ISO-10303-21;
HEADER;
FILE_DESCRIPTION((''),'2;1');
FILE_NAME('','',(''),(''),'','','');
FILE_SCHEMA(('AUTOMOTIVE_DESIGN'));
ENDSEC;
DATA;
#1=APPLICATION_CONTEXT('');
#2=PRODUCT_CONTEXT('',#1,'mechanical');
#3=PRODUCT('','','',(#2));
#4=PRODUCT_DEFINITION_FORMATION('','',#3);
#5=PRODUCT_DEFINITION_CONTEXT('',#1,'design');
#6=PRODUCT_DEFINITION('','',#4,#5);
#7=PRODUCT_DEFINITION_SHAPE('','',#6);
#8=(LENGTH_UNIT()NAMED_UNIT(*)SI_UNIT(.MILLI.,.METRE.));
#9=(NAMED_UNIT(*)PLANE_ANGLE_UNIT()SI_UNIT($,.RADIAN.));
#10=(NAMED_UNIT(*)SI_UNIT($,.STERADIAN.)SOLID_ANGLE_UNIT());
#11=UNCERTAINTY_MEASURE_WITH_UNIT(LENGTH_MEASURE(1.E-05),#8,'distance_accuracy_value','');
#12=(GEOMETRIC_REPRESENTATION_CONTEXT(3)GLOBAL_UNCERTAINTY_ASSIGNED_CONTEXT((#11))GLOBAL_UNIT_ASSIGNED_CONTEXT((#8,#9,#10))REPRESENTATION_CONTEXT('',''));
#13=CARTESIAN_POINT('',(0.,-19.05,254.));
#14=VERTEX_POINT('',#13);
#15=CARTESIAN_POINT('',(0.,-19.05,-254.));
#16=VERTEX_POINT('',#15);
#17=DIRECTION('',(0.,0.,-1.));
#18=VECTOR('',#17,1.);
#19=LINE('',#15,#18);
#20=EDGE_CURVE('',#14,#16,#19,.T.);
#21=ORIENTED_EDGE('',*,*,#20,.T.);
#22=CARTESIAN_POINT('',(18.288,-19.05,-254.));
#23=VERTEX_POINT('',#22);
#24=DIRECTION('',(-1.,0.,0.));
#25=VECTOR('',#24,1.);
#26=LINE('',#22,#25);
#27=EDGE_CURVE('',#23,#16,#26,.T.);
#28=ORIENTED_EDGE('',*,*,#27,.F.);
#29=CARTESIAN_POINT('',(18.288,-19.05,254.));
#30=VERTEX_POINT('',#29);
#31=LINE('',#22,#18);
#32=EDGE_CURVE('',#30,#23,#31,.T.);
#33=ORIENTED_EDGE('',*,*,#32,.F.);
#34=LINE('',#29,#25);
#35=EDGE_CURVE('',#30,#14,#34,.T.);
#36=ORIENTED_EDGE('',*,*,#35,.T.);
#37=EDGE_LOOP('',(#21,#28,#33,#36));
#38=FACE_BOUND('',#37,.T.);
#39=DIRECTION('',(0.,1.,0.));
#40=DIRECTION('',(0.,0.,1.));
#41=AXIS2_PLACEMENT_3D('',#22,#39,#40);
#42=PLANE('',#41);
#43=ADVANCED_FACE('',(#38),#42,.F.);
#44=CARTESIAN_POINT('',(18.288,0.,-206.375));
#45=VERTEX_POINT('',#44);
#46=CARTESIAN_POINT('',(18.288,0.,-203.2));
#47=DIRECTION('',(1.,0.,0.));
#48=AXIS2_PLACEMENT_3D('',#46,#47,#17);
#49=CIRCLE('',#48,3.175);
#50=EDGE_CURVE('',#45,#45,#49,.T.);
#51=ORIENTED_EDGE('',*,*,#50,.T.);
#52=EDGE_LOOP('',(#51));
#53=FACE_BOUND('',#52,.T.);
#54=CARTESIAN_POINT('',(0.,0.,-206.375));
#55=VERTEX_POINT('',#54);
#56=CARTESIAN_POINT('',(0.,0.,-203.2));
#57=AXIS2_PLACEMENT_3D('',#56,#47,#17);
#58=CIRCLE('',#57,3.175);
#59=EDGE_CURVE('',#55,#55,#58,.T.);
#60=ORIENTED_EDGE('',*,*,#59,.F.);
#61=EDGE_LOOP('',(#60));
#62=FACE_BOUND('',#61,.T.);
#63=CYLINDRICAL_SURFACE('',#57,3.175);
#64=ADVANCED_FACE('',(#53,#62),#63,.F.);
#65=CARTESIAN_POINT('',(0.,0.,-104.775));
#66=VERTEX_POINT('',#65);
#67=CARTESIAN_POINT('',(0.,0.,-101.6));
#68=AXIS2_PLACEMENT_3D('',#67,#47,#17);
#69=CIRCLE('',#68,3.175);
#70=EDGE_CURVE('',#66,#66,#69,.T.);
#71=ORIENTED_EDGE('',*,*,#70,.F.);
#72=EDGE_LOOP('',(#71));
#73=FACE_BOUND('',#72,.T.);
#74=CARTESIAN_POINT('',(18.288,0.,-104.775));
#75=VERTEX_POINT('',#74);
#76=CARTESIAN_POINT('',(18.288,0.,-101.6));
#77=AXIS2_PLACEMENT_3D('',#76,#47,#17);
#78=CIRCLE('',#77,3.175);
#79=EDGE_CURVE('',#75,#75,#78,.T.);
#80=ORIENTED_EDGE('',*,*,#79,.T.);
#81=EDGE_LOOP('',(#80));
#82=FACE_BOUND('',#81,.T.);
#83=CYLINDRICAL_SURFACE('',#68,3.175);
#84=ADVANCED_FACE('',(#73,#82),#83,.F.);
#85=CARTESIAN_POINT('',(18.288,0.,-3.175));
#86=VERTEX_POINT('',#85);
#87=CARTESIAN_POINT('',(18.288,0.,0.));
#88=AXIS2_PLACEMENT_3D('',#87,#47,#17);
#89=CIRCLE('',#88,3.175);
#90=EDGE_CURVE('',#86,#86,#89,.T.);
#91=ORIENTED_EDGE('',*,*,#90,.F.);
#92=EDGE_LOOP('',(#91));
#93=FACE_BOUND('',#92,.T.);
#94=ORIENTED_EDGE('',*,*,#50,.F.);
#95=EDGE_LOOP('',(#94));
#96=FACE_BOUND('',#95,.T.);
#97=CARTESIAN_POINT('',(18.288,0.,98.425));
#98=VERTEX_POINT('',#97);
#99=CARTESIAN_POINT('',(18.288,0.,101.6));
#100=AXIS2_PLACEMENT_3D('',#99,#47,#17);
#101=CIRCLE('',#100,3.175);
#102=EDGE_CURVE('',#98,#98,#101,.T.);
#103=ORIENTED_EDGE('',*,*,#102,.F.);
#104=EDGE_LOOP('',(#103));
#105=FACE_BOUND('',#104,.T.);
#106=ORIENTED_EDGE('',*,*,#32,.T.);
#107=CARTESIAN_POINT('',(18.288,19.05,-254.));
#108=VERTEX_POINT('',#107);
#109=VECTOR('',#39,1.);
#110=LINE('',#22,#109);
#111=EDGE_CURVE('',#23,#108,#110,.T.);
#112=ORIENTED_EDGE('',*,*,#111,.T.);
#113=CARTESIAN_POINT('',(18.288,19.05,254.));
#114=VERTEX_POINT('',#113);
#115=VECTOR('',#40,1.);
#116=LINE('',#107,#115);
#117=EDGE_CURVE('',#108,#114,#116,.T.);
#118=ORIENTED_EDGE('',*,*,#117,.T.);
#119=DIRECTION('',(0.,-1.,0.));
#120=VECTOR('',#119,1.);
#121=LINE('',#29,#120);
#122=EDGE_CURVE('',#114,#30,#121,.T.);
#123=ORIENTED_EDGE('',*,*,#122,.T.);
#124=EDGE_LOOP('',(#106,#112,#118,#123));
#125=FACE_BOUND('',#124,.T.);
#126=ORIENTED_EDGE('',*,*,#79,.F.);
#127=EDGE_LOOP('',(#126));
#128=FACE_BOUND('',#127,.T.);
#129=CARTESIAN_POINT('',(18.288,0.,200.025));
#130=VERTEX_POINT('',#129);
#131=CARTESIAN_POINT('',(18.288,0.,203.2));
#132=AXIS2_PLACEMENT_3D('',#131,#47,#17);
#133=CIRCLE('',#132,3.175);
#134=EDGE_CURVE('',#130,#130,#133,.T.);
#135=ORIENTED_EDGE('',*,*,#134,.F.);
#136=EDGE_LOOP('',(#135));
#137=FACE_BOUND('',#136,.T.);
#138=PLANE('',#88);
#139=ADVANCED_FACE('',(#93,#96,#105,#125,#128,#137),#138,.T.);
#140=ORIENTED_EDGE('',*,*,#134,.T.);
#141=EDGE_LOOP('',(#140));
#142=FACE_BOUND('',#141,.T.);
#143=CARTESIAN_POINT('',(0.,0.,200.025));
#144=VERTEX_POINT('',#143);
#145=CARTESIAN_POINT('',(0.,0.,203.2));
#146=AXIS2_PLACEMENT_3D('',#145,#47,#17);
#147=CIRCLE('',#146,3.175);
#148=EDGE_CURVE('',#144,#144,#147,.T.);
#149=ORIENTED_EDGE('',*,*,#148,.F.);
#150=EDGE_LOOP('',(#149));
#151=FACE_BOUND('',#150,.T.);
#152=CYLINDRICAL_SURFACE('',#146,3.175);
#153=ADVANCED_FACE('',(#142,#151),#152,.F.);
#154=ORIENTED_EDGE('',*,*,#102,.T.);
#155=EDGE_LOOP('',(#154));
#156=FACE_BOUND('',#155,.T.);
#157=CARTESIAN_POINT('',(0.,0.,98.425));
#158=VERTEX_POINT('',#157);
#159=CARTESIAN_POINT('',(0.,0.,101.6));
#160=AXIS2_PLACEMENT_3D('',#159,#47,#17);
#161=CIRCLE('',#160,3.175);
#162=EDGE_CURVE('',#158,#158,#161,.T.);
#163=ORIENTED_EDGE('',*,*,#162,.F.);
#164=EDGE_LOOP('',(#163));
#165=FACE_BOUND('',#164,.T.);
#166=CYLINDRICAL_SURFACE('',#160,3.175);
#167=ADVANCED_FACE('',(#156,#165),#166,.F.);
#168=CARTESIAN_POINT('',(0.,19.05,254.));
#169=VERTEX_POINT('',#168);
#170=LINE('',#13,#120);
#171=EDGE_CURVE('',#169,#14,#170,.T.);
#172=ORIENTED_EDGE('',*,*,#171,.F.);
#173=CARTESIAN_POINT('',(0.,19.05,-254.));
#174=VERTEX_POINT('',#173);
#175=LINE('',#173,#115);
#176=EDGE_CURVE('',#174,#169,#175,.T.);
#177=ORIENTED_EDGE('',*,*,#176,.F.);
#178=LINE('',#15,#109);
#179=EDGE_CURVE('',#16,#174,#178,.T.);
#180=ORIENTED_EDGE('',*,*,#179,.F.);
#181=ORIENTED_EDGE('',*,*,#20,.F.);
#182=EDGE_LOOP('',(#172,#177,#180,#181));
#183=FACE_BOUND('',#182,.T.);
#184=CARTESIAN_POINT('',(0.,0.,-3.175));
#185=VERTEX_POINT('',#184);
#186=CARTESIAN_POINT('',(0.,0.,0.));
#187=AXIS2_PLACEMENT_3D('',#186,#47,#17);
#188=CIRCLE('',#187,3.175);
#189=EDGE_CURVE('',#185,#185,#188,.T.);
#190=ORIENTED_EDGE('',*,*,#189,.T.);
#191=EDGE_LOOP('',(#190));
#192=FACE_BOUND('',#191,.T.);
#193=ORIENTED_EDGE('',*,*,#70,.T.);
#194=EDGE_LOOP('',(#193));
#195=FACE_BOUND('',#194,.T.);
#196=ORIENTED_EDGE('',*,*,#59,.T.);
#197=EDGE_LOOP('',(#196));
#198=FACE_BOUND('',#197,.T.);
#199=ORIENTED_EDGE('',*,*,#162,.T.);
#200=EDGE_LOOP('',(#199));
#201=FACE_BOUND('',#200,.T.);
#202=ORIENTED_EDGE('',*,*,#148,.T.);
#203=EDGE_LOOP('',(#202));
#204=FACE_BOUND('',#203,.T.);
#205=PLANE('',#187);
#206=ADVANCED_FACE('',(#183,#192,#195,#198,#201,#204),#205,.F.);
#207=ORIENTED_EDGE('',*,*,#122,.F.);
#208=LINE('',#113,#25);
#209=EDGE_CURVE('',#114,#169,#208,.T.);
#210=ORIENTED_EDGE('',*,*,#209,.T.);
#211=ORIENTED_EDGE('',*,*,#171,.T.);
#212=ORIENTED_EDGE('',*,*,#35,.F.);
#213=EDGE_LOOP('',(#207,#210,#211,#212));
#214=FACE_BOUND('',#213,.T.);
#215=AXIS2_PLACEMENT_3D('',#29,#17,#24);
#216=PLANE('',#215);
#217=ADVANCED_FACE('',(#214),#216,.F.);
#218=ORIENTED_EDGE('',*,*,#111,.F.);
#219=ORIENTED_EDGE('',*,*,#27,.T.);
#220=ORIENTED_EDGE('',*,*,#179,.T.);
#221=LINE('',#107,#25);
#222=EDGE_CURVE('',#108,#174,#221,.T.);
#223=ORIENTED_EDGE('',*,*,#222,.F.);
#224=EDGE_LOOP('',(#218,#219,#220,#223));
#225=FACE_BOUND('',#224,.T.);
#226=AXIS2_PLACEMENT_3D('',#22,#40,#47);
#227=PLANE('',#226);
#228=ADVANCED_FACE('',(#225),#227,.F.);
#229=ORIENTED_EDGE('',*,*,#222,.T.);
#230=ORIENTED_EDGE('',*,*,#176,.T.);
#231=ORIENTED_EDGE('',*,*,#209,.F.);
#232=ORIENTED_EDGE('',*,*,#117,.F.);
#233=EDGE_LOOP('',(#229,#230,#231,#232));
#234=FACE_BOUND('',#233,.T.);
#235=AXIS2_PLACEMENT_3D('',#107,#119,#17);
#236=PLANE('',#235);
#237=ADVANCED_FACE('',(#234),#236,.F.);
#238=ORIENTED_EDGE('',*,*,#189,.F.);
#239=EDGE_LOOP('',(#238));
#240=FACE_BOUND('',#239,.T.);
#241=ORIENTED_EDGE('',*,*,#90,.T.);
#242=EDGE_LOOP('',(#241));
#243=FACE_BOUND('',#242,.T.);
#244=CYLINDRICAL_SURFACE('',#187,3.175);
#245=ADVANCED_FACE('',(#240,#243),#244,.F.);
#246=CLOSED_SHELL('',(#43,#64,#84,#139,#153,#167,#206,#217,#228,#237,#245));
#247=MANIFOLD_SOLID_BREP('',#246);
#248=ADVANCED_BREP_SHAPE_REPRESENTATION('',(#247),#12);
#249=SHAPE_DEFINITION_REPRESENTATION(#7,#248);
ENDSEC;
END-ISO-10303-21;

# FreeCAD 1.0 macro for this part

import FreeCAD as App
import Part
import Sketcher
Q = App.Units.Quantity


def add_polygon(sketch, points):
    """Adds a closed chain of lines whose ends are joined by coincident constraints."""
    first, n = sketch.GeometryCount, len(points)
    for a, b in zip(points, points[1:] + points[:1]):
        sketch.addGeometry(Part.LineSegment(App.Vector(*a, 0), App.Vector(*b, 0)), False)
    for i in range(n):
        sketch.addConstraint(Sketcher.Constraint("Coincident", first + i, 2, first + (i + 1) % n, 1))

doc = App.newDocument("Part")
body = doc.addObject("PartDesign::Body", "Body")

# Sketch on YZ plane
sketch1 = body.newObject("Sketcher::SketchObject", "Sketch")
sketch1.AttachmentSupport = (doc.getObject("YZ_Plane"), [""])
sketch1.MapMode = "FlatFace"
add_polygon(sketch1, [(19, 254), (-19, 254), (-19, -254), (19, -254)])  # lines 0-3
sketch1.addConstraint(Sketcher.Constraint("Horizontal", 0))
sketch1.addConstraint(Sketcher.Constraint("Vertical", 1))
sketch1.addConstraint(Sketcher.Constraint("Horizontal", 2))
sketch1.addConstraint(Sketcher.Constraint("Vertical", 3))
sketch1.addConstraint(Sketcher.Constraint("Symmetric", 0, 2, 2, 2, -1, 1))
sketch1.addConstraint(Sketcher.Constraint("DistanceY", 1, 2, 1, 1, Q("20 in")))
sketch1.addConstraint(Sketcher.Constraint("DistanceX", 0, 2, 0, 1, Q("1.5 in")))
pad1 = body.newObject("PartDesign::Pad", "Pad")
pad1.Profile = sketch1
pad1.Length = Q("0.72 in")

# Sketch on YZ plane
sketch2 = body.newObject("Sketcher::SketchObject", "Sketch001")
sketch2.AttachmentSupport = (doc.getObject("YZ_Plane"), [""])
sketch2.MapMode = "FlatFace"
sketch2.AttachmentOffset = App.Placement(App.Vector(0, 0, 0.72 * 25.4), App.Rotation())
sketch2.addGeometry(Part.Circle(App.Vector(0, -203.2, 0), App.Vector(0, 0, 1), 3.2), False)
sketch2.addGeometry(Part.Circle(App.Vector(0, -101.6, 0), App.Vector(0, 0, 1), 3.2), False)
sketch2.addGeometry(Part.Circle(App.Vector(0, 0, 0), App.Vector(0, 0, 1), 3.2), False)
sketch2.addGeometry(Part.Circle(App.Vector(0, 101.6, 0), App.Vector(0, 0, 1), 3.2), False)
sketch2.addGeometry(Part.Circle(App.Vector(0, 203.2, 0), App.Vector(0, 0, 1), 3.2), False)
sketch2.addConstraint(Sketcher.Constraint("Coincident", 2, 3, -1, 1))
sketch2.addConstraint(Sketcher.Constraint("Equal", 0, 1))
sketch2.addConstraint(Sketcher.Constraint("Equal", 1, 2))
sketch2.addConstraint(Sketcher.Constraint("Equal", 2, 3))
sketch2.addConstraint(Sketcher.Constraint("Equal", 3, 4))
sketch2.addConstraint(Sketcher.Constraint("Symmetric", 1, 3, 3, 3, -1, 1))
sketch2.addConstraint(Sketcher.Constraint("Symmetric", 0, 3, 4, 3, -1, 1))
sketch2.addConstraint(Sketcher.Constraint("PointOnObject", 0, 3, -2))
sketch2.addConstraint(Sketcher.Constraint("PointOnObject", 1, 3, -2))
sketch2.addConstraint(Sketcher.Constraint("Diameter", 0, Q("0.25 in")))
sketch2.addConstraint(Sketcher.Constraint("DistanceY", 0, 3, -1, 1, Q("8 in")))
sketch2.addConstraint(Sketcher.Constraint("DistanceY", 1, 3, -1, 1, Q("4 in")))
pocket1 = body.newObject("PartDesign::Pocket", "Pocket")
pocket1.Profile = sketch2
pocket1.Type = "ThroughAll"

doc.recompute()
